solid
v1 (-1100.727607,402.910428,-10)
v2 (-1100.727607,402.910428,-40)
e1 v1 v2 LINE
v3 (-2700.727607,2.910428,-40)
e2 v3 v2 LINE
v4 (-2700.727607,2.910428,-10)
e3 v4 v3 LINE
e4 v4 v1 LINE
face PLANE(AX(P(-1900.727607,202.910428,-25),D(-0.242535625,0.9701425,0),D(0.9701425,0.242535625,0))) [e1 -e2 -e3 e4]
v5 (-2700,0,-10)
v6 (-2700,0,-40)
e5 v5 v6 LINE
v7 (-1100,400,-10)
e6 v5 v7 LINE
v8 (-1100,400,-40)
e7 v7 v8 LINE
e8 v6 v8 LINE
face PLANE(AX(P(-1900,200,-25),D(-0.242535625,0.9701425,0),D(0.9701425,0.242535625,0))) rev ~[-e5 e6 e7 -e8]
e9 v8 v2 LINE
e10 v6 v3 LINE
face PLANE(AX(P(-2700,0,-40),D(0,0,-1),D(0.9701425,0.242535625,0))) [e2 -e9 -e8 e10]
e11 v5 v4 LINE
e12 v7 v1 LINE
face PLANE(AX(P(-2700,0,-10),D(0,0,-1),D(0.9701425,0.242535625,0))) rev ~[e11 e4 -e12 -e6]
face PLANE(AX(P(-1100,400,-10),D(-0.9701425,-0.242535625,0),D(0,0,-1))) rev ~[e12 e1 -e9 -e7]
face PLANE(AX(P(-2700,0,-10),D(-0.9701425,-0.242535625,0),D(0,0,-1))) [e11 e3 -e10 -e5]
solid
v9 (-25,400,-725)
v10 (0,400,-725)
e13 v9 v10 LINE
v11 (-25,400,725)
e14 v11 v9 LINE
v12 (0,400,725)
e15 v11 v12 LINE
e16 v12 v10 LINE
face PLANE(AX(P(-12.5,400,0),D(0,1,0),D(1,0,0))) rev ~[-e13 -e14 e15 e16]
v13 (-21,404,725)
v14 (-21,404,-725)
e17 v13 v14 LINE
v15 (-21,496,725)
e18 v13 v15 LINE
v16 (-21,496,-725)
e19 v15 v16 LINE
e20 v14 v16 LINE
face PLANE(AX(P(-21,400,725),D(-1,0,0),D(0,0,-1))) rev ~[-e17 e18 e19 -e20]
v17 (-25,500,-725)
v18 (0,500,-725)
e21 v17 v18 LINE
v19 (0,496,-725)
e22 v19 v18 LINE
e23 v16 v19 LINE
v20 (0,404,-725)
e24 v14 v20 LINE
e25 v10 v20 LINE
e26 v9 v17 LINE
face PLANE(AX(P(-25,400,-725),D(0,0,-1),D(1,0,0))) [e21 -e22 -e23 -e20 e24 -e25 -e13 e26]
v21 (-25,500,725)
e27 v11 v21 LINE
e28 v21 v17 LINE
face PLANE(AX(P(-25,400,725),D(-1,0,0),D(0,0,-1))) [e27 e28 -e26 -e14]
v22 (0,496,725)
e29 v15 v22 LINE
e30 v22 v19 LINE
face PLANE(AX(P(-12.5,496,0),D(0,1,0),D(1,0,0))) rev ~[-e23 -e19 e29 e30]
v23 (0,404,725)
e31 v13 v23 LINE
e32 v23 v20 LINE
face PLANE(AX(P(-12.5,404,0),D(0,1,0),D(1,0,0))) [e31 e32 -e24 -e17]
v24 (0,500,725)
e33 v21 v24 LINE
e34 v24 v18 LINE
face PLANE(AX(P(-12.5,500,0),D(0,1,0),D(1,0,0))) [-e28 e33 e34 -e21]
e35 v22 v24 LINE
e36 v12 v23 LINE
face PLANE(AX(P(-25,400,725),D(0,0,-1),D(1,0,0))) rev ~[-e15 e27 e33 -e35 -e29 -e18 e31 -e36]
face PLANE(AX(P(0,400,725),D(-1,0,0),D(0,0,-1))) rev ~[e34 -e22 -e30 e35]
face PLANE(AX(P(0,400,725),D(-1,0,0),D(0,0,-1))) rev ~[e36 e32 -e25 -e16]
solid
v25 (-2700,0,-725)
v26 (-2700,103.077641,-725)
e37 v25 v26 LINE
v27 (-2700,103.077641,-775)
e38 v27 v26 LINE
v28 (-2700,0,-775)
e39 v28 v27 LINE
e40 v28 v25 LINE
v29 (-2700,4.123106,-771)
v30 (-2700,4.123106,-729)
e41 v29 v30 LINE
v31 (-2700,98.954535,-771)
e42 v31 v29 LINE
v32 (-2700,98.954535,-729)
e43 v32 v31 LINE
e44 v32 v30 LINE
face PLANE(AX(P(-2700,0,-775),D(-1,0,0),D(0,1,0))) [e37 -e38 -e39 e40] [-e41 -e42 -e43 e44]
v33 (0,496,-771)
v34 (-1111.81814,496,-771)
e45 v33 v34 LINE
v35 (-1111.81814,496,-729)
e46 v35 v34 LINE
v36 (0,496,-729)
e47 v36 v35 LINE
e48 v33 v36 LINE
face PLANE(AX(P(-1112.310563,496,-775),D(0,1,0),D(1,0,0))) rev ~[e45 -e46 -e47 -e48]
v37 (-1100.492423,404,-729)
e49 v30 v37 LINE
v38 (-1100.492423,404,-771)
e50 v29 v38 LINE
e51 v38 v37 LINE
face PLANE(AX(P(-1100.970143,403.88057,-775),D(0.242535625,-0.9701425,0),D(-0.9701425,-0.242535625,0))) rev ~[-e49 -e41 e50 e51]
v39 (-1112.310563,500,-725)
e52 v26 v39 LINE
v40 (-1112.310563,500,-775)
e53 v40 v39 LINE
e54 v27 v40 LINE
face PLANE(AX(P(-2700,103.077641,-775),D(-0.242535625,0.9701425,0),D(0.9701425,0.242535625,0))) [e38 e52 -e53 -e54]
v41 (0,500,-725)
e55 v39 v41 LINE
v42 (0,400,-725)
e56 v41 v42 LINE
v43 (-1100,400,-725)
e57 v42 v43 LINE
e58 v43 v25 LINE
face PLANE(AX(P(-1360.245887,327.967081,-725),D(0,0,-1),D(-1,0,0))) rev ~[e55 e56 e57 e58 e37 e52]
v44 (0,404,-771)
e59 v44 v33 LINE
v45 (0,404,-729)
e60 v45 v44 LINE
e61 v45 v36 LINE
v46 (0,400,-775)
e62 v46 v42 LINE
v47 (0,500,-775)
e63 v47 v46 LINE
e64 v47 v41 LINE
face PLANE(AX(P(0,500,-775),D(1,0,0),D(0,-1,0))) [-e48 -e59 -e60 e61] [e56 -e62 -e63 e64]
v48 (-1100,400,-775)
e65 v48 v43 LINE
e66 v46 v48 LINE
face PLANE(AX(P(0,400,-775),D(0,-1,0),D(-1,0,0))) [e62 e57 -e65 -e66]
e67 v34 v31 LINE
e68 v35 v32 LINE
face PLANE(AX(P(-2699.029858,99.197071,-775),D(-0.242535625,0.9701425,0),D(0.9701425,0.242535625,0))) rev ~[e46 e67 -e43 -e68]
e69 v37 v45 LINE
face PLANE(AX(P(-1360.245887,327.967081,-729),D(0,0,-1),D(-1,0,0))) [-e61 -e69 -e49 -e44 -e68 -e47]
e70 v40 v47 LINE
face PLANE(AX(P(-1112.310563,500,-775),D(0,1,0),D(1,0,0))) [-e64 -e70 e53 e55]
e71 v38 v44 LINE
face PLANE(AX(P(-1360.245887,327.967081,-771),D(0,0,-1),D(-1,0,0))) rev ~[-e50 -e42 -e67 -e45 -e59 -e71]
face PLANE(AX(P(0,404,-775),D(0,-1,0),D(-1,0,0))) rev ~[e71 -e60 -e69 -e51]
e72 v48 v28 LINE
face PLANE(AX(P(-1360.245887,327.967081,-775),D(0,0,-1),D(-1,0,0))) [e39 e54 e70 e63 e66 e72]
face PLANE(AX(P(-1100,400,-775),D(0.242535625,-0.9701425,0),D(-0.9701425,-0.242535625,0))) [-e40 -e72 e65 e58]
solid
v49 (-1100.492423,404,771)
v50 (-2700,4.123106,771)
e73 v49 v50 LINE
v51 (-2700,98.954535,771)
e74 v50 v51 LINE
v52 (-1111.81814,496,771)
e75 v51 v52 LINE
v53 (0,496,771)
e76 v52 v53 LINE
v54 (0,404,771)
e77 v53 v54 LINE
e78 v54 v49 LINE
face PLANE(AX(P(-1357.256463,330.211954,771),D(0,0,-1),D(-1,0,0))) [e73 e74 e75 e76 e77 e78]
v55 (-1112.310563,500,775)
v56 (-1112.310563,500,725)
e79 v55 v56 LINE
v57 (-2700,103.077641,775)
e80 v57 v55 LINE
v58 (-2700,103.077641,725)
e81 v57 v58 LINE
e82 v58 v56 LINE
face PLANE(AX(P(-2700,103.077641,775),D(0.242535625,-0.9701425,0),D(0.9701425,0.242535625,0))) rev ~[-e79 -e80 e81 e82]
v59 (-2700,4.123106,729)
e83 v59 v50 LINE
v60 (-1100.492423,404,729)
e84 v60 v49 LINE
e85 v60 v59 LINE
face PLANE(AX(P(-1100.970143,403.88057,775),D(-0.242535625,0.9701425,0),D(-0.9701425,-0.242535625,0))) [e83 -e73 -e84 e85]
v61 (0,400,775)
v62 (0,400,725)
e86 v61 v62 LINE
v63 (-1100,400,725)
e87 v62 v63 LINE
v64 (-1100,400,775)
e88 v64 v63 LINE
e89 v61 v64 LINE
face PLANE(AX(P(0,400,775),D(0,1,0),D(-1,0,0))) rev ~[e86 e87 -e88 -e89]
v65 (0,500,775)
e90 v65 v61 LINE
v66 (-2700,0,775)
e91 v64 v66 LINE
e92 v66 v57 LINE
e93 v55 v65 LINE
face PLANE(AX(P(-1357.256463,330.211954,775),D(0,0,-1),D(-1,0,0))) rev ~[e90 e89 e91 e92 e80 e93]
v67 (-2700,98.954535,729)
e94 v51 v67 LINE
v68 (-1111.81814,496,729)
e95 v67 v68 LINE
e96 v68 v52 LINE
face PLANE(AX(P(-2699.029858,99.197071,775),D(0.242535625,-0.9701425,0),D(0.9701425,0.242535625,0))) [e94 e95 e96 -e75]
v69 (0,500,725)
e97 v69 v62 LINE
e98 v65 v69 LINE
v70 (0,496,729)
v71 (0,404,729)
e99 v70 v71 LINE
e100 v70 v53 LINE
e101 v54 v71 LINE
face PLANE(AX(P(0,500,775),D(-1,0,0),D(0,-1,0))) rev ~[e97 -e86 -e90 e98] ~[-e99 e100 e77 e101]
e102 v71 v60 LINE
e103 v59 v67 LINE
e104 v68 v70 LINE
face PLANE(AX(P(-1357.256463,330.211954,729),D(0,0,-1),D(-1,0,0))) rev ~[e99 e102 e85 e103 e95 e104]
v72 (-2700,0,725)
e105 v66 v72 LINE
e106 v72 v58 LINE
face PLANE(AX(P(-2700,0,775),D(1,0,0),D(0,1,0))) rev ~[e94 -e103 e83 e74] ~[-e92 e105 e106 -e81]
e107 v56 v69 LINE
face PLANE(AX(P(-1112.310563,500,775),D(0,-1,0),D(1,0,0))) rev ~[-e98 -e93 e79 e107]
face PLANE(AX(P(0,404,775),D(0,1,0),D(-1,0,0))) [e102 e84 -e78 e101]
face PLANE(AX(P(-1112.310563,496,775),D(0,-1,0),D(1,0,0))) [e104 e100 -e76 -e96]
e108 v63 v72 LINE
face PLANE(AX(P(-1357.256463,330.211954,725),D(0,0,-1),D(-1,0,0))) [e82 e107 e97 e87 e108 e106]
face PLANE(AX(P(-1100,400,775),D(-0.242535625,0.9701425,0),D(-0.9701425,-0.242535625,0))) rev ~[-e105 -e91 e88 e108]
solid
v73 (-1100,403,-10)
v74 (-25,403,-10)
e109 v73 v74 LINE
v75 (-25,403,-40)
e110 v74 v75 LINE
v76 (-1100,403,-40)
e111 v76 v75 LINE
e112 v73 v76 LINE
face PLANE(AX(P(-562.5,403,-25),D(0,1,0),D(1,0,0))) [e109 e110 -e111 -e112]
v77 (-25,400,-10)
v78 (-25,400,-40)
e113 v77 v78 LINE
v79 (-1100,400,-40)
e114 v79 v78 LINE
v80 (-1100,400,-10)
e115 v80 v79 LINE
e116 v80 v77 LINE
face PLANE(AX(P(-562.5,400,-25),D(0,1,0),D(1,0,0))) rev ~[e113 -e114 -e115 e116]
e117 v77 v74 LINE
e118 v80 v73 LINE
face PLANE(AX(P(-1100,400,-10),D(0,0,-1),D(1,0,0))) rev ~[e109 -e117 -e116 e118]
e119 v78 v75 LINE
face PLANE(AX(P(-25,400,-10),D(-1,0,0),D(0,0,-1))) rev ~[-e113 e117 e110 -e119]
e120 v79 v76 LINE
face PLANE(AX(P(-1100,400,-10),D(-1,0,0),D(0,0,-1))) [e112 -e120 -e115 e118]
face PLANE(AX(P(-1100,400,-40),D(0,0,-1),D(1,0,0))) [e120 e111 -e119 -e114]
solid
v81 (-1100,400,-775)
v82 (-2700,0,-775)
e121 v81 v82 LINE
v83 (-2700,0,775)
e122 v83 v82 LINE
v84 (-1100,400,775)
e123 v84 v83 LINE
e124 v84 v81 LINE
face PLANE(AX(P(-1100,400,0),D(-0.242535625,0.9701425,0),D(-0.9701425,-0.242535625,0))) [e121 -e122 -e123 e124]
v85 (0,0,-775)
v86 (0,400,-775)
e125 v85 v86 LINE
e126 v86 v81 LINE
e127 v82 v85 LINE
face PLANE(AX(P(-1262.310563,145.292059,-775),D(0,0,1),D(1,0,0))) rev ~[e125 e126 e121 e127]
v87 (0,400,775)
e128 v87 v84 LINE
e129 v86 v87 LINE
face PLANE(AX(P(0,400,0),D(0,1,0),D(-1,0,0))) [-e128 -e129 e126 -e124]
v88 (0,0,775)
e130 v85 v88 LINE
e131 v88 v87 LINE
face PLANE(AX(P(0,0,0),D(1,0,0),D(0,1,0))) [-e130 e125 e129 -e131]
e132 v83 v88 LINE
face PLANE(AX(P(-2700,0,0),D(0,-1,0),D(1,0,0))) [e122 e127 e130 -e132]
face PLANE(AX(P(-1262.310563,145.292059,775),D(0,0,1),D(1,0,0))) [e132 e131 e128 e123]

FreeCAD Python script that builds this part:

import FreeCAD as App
import Part
import Sketcher
Q = App.Units.Quantity


def faces_at(feature, points):
    """Names of the faces that lie closest to the given points."""
    faces = feature.Shape.Faces
    near = lambda p: min(range(len(faces)), key=lambda i: faces[i].distToShape(Part.Vertex(*p))[0])
    return sorted({f"Face{near(p) + 1}" for p in points})


def add_polygon(sketch, points):
    """Adds a closed chain of lines whose ends are joined by coincident constraints."""
    first, n = sketch.GeometryCount, len(points)
    for a, b in zip(points, points[1:] + points[:1]):
        sketch.addGeometry(Part.LineSegment(App.Vector(*a, 0), App.Vector(*b, 0)), False)
    for i in range(n):
        sketch.addConstraint(Sketcher.Constraint("Coincident", first + i, 2, first + (i + 1) % n, 1))

doc = App.newDocument("Part")
params = doc.addObject("Spreadsheet::Sheet", "Params")
for row, (alias, value) in enumerate([
    ("sketch1_width", "2700 mm"),
    ("sketch1_width2", "1100 mm"),
    ("sketch1_height", "400 mm"),
    ("pad1_length", "775 mm"),
    ("pad1_length2", "775 mm"),
    ("sketch2_width", "1100 mm"),
    ("sketch2_height", "100 mm"),
    ("pad2_length", "50 mm"),
    ("thickness_wall", "4 mm"),
    ("sketch3_width", "1100 mm"),
    ("sketch3_height", "100 mm"),
    ("pad3_length", "50 mm"),
    ("thickness2_wall", "4 mm"),
    ("sketch4_width", "25 mm"),
    ("sketch4_height", "1450 mm"),
    ("pad4_length", "100 mm"),
    ("thickness3_wall", "4 mm"),
    ("sketch5_width", "1075 mm"),
    ("sketch5_height", "30 mm"),
    ("pad5_length", "3 mm"),
    ("sketch6_height", "30 mm"),
    ("pad6_length", "3 mm"),
], start=1):
    params.set(f"A{row}", alias)
    params.set(f"B{row}", "=" + value)
    params.setAlias(f"B{row}", alias)

body = doc.addObject("PartDesign::Body", "Body")

# Sketch on XY plane
sketch1 = body.newObject("Sketcher::SketchObject", "Sketch")
sketch1.AttachmentSupport = (doc.getObject("XY_Plane"), [""])
sketch1.MapMode = "FlatFace"
add_polygon(sketch1, [(-2700, 0), (0, 0), (0, 400), (-1100, 400)])  # lines 0-3
sketch1.addConstraint([
    Sketcher.Constraint("Horizontal", 0),
    Sketcher.Constraint("Vertical", 1),
    Sketcher.Constraint("Horizontal", 2),
    Sketcher.Constraint("Coincident", 0, 2, -1, 1),
    Sketcher.Constraint("DistanceX", 0, 1, 0, 2, Q("2700 mm")),
    Sketcher.Constraint("DistanceX", 2, 2, 2, 1, Q("1100 mm")),
    Sketcher.Constraint("DistanceY", 1, 1, 1, 2, Q("400 mm")),
])
sketch1.setExpression("Constraints[8]", "Params.sketch1_width")
sketch1.setExpression("Constraints[9]", "Params.sketch1_width2")
sketch1.setExpression("Constraints[10]", "Params.sketch1_height")
pad1 = body.newObject("PartDesign::Pad", "Pad")
pad1.Profile = sketch1
pad1.Type = "TwoLengths"
pad1.setExpression("Length", "Params.pad1_length")
pad1.setExpression("Length2", "Params.pad1_length2")
body2 = doc.addObject("PartDesign::Body", "Body001")

# Sketch on XY plane
sketch2 = body2.newObject("Sketcher::SketchObject", "Sketch001")
sketch2.AttachmentSupport = (doc.getObject("XY_Plane001"), [""])
sketch2.MapMode = "FlatFace"
sketch2.AttachmentOffset = App.Placement(App.Vector(0, 0, 775), App.Rotation())
add_polygon(sketch2, [(0, 500), (-1112.310563, 500), (-2700, 103.077641), (-2700, 0), (-1100, 400), (0, 400)])  # lines 0-5
sketch2.addConstraint([
    Sketcher.Constraint("Horizontal", 0),
    Sketcher.Constraint("Vertical", 2),
    Sketcher.Constraint("Horizontal", 4),
    Sketcher.Constraint("Vertical", 5),
    Sketcher.Constraint("PointOnObject", 2, 2, -1),
    Sketcher.Constraint("PointOnObject", 4, 2, -2),
    Sketcher.Constraint("Parallel", 1, 3),
    Sketcher.Constraint("DistanceX", 4, 1, 4, 2, Q("1100 mm")),
    Sketcher.Constraint("DistanceY", 5, 1, 5, 2, Q("100 mm")),
    Sketcher.Constraint("DistanceY", -1, 1, 0, 2, Q("500 mm")),
    Sketcher.Constraint("DistanceX", 1, 2, -1, 1, Q("2700 mm")),
    Sketcher.Constraint("DistanceY", 2, 2, 2, 1, Q("103.077641 mm")),
])
sketch2.setExpression("Constraints[13]", "Params.sketch2_width")
sketch2.setExpression("Constraints[14]", "Params.sketch2_height")
pad2 = body2.newObject("PartDesign::Pad", "Pad001")
pad2.Profile = sketch2
pad2.setExpression("Length", "Params.pad2_length")
pad2.Reversed = True
doc.recompute()

thickness = body2.newObject("PartDesign::Thickness", "Thickness")
thickness.Base = (pad2, faces_at(pad2, [(-2700, 51.539, 750), (0, 450, 750)]))
thickness.setExpression("Value", "Params.thickness_wall")
thickness.Reversed = True
thickness.Join = "Intersection"
body3 = doc.addObject("PartDesign::Body", "Body002")

# Sketch on XY plane
sketch3 = body3.newObject("Sketcher::SketchObject", "Sketch002")
sketch3.AttachmentSupport = (doc.getObject("XY_Plane002"), [""])
sketch3.MapMode = "FlatFace"
sketch3.AttachmentOffset = App.Placement(App.Vector(0, 0, -775), App.Rotation())
add_polygon(sketch3, [(-2700, 0), (-2700, 103.077641), (-1112.310563, 500), (0, 500), (0, 400), (-1100, 400)])  # lines 0-5
sketch3.addConstraint([
    Sketcher.Constraint("Vertical", 0),
    Sketcher.Constraint("Horizontal", 2),
    Sketcher.Constraint("Vertical", 3),
    Sketcher.Constraint("Horizontal", 4),
    Sketcher.Constraint("PointOnObject", 2, 2, -2),
    Sketcher.Constraint("PointOnObject", 5, 2, -1),
    Sketcher.Constraint("Parallel", 1, 5),
    Sketcher.Constraint("DistanceX", 4, 2, 4, 1, Q("1100 mm")),
    Sketcher.Constraint("DistanceY", 3, 2, 3, 1, Q("100 mm")),
    Sketcher.Constraint("DistanceX", 0, 2, -1, 1, Q("2700 mm")),
    Sketcher.Constraint("DistanceY", -1, 1, 1, 2, Q("500 mm")),
    Sketcher.Constraint("DistanceY", 0, 1, 0, 2, Q("103.077641 mm")),
])
sketch3.setExpression("Constraints[13]", "Params.sketch3_width")
sketch3.setExpression("Constraints[14]", "Params.sketch3_height")
pad3 = body3.newObject("PartDesign::Pad", "Pad002")
pad3.Profile = sketch3
pad3.setExpression("Length", "Params.pad3_length")
doc.recompute()

thickness2 = body3.newObject("PartDesign::Thickness", "Thickness001")
thickness2.Base = (pad3, faces_at(pad3, [(0, 450, -750), (-2700, 51.539, -750)]))
thickness2.setExpression("Value", "Params.thickness2_wall")
thickness2.Reversed = True
thickness2.Join = "Intersection"
body4 = doc.addObject("PartDesign::Body", "Body003")

# Sketch on XZ plane
sketch4 = body4.newObject("Sketcher::SketchObject", "Sketch003")
sketch4.AttachmentSupport = (doc.getObject("XZ_Plane003"), [""])
sketch4.MapMode = "FlatFace"
sketch4.AttachmentOffset = App.Placement(App.Vector(0, 0, -400), App.Rotation())
add_polygon(sketch4, [(-25, -725), (-25, 725), (0, 725), (0, -725)])  # lines 0-3
sketch4.addConstraint([
    Sketcher.Constraint("Vertical", 0),
    Sketcher.Constraint("Horizontal", 1),
    Sketcher.Constraint("Vertical", 2),
    Sketcher.Constraint("Horizontal", 3),
    Sketcher.Constraint("Symmetric", 1, 2, 2, 2, -1, 1),
    Sketcher.Constraint("DistanceX", 1, 1, 1, 2, Q("25 mm")),
    Sketcher.Constraint("DistanceY", 0, 1, 0, 2, Q("1450 mm")),
])
sketch4.setExpression("Constraints[9]", "Params.sketch4_width")
sketch4.setExpression("Constraints[10]", "Params.sketch4_height")
pad4 = body4.newObject("PartDesign::Pad", "Pad003")
pad4.Profile = sketch4
pad4.setExpression("Length", "Params.pad4_length")
pad4.Reversed = True
doc.recompute()

thickness3 = body4.newObject("PartDesign::Thickness", "Thickness002")
thickness3.Base = (pad4, faces_at(pad4, [(-12.5, 450, -725), (0, 450, 0), (-12.5, 450, 725)]))
thickness3.setExpression("Value", "Params.thickness3_wall")
thickness3.Reversed = True
thickness3.Join = "Intersection"
body5 = doc.addObject("PartDesign::Body", "Body004")

# Sketch on XZ plane
sketch5 = body5.newObject("Sketcher::SketchObject", "Sketch004")
sketch5.AttachmentSupport = (doc.getObject("XZ_Plane004"), [""])
sketch5.MapMode = "FlatFace"
sketch5.AttachmentOffset = App.Placement(App.Vector(0, 0, -400), App.Rotation())
add_polygon(sketch5, [(-1100, -40), (-1100, -10), (-25, -10), (-25, -40)])  # lines 0-3
sketch5.addConstraint([
    Sketcher.Constraint("Vertical", 0),
    Sketcher.Constraint("Horizontal", 1),
    Sketcher.Constraint("Vertical", 2),
    Sketcher.Constraint("Horizontal", 3),
    Sketcher.Constraint("DistanceX", 1, 1, 1, 2, Q("1075 mm")),
    Sketcher.Constraint("DistanceY", 0, 1, 0, 2, Q("30 mm")),
    Sketcher.Constraint("DistanceX", 0, 2, -1, 1, Q("1100 mm")),
    Sketcher.Constraint("DistanceY", 0, 2, -1, 1, Q("10 mm")),
])
sketch5.setExpression("Constraints[8]", "Params.sketch5_width")
sketch5.setExpression("Constraints[9]", "Params.sketch5_height")
pad5 = body5.newObject("PartDesign::Pad", "Pad004")
pad5.Profile = sketch5
pad5.setExpression("Length", "Params.pad5_length")
pad5.Reversed = True
body6 = doc.addObject("PartDesign::Body", "Body005")

# Sketch on an angled plane
sketch6 = body6.newObject("Sketcher::SketchObject", "Sketch005")
sketch6.Placement = App.Placement(App.Vector(-158.823529, 635.294118, 0), App.Rotation(App.Vector(0.9701425, 0.242535625, 0), App.Vector(0, 0, -1), App.Vector(-0.242535625, 0.9701425, 0), "ZXY"))
add_polygon(sketch6, [(-2619.38475, 40), (-2619.38475, 10), (-970.1425, 10), (-970.1425, 40)])  # lines 0-3
sketch6.addConstraint([
    Sketcher.Constraint("Vertical", 0),
    Sketcher.Constraint("Horizontal", 1),
    Sketcher.Constraint("Vertical", 2),
    Sketcher.Constraint("Horizontal", 3),
    Sketcher.Constraint("DistanceY", 0, 2, 0, 1, Q("30 mm")),
    Sketcher.Constraint("DistanceY", -1, 1, 0, 2, Q("10 mm")),
    Sketcher.Constraint("DistanceX", 1, 1, 1, 2, Q("1649.24225 mm")),
    Sketcher.Constraint("DistanceX", 1, 2, -1, 1, Q("970.1425 mm")),
])
sketch6.setExpression("Constraints[8]", "Params.sketch6_height")
pad6 = body6.newObject("PartDesign::Pad", "Pad005")
pad6.Profile = sketch6
pad6.setExpression("Length", "Params.pad6_length")

doc.recompute()
